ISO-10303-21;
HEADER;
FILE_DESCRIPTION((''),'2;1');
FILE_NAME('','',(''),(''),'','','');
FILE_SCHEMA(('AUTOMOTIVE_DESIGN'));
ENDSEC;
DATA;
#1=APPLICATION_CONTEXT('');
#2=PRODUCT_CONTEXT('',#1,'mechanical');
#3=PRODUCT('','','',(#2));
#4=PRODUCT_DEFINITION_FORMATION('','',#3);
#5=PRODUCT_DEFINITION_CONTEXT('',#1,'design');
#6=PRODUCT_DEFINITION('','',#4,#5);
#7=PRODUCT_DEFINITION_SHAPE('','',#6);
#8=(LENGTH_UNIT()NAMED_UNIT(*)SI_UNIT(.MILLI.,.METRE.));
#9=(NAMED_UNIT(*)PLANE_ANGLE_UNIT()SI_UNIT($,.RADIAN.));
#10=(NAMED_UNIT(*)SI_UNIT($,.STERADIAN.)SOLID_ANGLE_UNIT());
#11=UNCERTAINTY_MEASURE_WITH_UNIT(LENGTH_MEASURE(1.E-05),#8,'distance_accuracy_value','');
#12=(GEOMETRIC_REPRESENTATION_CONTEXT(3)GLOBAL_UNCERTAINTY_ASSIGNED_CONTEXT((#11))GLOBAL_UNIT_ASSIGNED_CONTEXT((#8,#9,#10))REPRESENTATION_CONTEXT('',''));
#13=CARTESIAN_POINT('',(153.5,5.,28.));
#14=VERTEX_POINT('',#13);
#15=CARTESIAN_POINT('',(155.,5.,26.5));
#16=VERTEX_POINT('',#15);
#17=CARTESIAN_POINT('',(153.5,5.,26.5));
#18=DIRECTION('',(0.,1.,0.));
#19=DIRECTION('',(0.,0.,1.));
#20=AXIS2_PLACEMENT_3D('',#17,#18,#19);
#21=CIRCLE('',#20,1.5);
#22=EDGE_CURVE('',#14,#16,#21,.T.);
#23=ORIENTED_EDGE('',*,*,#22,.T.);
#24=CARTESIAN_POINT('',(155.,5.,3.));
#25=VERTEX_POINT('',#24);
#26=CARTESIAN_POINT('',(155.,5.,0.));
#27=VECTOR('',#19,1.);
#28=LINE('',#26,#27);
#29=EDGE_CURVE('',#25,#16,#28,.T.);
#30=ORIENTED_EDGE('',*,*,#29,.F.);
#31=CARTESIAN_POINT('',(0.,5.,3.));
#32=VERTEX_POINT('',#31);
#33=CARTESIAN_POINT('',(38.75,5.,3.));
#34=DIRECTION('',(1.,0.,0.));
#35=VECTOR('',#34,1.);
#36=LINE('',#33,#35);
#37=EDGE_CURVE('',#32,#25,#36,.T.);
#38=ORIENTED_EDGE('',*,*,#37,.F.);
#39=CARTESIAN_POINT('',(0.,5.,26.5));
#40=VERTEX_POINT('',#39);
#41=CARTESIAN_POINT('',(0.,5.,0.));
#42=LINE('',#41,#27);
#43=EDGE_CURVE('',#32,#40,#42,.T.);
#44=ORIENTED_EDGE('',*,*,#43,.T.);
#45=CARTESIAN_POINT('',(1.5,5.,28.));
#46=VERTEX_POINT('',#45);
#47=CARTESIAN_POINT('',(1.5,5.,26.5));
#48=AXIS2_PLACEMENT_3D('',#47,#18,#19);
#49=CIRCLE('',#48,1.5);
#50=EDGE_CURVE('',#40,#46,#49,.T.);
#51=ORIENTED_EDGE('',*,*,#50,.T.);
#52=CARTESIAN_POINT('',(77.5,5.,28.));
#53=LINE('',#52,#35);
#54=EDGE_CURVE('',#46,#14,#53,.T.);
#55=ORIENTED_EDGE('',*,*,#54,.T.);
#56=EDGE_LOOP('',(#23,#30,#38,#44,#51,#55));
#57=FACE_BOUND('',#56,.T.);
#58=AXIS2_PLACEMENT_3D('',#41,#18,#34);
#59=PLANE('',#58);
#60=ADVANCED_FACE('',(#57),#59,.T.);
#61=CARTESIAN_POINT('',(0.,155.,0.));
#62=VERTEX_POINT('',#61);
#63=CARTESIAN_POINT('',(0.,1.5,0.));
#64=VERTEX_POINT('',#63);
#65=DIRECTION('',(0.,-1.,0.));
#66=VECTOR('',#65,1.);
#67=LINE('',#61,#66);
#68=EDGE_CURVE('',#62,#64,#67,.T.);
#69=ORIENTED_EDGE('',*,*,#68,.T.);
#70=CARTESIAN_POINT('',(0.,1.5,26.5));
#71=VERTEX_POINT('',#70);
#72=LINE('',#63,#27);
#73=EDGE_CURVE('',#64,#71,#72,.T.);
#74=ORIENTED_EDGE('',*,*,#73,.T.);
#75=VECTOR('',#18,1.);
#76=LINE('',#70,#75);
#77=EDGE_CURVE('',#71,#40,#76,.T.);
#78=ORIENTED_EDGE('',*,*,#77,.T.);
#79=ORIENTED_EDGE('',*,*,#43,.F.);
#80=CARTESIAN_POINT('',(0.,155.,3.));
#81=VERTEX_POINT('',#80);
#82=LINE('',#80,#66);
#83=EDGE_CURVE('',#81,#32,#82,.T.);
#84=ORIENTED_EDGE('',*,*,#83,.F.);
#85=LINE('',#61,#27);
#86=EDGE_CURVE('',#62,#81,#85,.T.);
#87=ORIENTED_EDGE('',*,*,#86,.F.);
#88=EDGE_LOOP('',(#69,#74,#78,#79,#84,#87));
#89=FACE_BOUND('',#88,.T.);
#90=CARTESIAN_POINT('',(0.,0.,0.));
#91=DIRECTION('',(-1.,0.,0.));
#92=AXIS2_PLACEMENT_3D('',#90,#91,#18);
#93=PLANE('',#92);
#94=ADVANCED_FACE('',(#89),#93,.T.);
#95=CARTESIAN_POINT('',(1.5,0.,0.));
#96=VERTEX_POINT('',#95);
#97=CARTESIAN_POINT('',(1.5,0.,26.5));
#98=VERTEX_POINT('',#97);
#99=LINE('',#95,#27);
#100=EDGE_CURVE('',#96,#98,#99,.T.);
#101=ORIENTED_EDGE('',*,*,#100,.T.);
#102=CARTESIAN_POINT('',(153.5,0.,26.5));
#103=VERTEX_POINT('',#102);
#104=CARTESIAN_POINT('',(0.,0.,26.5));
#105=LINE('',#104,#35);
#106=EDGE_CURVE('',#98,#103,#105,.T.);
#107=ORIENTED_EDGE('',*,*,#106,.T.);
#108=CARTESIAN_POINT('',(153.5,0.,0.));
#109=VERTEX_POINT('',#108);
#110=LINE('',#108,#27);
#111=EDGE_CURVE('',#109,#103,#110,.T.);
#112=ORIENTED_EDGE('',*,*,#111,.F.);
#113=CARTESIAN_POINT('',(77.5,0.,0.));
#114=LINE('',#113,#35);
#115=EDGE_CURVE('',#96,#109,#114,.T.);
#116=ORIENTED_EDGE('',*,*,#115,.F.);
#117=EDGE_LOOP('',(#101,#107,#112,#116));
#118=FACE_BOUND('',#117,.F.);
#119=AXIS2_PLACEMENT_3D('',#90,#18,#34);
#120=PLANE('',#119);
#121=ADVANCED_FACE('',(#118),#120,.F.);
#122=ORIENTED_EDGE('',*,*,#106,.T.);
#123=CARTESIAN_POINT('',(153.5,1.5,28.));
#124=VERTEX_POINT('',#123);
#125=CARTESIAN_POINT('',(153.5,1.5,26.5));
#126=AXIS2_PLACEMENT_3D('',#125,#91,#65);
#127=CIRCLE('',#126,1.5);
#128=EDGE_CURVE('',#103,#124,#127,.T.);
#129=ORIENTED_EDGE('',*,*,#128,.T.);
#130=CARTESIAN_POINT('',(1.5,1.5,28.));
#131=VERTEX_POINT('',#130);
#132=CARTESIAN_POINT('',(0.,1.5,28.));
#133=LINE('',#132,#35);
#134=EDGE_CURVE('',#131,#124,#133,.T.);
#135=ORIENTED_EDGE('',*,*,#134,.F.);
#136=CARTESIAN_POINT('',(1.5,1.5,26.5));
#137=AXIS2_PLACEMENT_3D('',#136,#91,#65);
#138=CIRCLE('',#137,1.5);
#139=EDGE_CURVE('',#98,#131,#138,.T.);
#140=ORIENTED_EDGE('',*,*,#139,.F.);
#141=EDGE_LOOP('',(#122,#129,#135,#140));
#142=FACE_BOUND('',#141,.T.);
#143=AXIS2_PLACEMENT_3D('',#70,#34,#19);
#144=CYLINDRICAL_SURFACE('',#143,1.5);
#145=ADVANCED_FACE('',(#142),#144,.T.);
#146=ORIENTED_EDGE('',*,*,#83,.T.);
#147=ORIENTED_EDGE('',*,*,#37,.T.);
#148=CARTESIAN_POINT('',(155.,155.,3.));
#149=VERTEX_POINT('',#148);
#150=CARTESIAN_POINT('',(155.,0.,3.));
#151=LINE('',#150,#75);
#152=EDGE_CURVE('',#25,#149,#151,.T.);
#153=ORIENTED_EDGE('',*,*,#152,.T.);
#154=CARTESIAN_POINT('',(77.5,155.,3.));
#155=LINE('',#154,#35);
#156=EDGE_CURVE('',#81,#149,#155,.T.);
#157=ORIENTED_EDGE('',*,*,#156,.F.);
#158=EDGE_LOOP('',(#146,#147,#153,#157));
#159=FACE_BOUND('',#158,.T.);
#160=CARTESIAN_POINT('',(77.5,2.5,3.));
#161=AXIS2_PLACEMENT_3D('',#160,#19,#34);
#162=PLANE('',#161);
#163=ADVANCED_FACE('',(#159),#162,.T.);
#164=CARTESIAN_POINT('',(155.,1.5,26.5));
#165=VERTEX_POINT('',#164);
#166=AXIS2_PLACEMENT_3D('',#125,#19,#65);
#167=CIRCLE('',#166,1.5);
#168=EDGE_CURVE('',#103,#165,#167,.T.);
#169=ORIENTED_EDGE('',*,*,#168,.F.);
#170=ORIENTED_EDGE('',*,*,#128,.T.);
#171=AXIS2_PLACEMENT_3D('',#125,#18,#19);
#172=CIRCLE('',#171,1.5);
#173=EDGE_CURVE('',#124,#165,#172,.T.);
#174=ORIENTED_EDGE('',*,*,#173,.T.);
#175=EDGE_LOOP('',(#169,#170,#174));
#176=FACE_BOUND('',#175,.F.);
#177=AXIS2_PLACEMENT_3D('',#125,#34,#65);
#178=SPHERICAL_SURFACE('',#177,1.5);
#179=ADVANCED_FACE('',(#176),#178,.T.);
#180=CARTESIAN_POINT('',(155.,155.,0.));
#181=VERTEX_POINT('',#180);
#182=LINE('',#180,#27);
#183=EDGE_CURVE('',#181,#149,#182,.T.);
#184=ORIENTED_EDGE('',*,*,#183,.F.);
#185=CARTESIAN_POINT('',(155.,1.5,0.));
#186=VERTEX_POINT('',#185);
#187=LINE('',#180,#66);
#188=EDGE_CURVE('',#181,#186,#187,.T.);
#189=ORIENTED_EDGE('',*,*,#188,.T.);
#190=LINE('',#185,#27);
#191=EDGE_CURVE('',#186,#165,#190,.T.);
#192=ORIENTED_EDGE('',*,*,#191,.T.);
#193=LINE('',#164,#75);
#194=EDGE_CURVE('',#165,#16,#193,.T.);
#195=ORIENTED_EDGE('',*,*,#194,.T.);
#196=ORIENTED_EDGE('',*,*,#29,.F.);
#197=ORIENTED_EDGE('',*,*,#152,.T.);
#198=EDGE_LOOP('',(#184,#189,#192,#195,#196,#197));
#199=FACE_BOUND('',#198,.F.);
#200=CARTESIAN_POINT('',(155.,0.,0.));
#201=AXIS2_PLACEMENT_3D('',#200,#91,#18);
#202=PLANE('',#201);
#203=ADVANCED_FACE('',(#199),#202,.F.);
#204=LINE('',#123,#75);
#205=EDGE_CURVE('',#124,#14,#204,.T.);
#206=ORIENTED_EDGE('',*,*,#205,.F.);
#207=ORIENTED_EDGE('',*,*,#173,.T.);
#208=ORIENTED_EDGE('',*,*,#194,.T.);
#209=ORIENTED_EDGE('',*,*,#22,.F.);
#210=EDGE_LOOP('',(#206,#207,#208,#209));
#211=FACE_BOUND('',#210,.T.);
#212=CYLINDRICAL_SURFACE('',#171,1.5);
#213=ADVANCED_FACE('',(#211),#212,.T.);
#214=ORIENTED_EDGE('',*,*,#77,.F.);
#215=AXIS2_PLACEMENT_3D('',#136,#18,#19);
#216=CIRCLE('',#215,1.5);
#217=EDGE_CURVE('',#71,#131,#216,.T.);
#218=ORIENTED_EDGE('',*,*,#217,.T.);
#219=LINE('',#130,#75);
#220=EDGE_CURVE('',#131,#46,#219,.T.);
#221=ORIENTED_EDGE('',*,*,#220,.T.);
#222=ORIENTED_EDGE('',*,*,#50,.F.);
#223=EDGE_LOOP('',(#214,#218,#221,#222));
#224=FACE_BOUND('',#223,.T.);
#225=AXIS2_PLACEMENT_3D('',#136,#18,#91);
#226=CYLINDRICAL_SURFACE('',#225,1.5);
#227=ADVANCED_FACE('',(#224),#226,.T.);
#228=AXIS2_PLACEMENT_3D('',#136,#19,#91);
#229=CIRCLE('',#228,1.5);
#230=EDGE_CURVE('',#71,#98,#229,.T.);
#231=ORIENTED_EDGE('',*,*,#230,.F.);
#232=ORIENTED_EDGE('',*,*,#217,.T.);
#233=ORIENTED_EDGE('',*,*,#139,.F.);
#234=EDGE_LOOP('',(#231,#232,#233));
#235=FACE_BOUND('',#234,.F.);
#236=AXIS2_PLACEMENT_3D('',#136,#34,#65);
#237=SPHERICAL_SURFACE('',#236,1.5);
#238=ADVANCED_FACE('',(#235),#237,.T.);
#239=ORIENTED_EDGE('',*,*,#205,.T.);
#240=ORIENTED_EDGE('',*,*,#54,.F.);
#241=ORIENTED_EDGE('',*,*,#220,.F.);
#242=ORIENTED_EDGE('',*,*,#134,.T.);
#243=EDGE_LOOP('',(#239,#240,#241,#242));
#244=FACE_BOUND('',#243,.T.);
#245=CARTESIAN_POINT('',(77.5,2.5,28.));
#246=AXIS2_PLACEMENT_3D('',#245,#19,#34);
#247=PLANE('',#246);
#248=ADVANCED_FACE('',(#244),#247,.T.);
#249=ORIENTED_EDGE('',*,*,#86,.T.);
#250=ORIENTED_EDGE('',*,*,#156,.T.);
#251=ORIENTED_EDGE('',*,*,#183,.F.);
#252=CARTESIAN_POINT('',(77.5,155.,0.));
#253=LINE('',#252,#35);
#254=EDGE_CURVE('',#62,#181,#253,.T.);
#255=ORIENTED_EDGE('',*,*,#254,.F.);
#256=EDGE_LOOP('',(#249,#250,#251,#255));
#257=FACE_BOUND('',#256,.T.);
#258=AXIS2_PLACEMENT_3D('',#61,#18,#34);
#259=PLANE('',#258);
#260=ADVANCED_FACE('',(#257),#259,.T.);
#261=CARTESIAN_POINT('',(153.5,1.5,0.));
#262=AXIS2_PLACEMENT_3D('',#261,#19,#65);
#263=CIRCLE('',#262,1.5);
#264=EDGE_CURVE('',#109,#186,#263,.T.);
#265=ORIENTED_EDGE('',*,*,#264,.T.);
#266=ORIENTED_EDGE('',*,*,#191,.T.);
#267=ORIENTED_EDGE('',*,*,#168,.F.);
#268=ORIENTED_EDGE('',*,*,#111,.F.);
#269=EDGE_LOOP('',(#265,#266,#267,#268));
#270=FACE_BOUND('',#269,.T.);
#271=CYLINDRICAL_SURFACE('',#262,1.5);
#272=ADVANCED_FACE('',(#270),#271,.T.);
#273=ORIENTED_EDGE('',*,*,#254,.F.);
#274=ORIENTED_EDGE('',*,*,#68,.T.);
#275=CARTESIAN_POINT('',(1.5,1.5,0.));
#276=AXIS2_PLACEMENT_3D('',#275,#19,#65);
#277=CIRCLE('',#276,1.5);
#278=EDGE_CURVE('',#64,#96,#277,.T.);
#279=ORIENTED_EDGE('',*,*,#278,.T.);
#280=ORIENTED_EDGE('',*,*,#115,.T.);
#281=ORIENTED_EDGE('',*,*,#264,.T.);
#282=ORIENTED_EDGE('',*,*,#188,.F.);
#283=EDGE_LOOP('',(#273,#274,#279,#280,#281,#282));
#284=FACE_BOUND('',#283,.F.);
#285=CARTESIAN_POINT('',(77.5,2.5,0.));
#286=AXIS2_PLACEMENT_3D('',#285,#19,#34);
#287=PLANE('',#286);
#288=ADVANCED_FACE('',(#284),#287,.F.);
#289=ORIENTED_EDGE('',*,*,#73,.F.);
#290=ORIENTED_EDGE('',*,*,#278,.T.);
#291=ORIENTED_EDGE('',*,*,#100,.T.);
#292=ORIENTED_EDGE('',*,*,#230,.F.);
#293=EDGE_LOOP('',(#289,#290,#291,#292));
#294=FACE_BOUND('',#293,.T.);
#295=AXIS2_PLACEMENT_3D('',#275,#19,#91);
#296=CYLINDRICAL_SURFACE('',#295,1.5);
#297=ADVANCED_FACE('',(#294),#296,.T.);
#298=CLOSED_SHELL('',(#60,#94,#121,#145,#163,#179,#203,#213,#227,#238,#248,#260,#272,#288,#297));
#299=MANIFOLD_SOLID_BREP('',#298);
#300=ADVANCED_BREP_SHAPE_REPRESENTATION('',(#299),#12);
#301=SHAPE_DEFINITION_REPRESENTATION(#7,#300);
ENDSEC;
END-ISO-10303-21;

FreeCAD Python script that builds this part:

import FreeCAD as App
import Part
import Sketcher
Q = App.Units.Quantity


def edges_at(feature, points):
    """Names of the edges that pass closest to the given points."""
    edges = feature.Shape.Edges
    near = lambda p: min(range(len(edges)), key=lambda i: edges[i].distToShape(Part.Vertex(*p))[0])
    return sorted({f"Edge{near(p) + 1}" for p in points})


def add_polygon(sketch, points):
    """Adds a closed chain of lines whose ends are joined by coincident constraints."""
    first, n = sketch.GeometryCount, len(points)
    for a, b in zip(points, points[1:] + points[:1]):
        sketch.addGeometry(Part.LineSegment(App.Vector(*a, 0), App.Vector(*b, 0)), False)
    for i in range(n):
        sketch.addConstraint(Sketcher.Constraint("Coincident", first + i, 2, first + (i + 1) % n, 1))

doc = App.newDocument("Part")
body = doc.addObject("PartDesign::Body", "Body")

# Sketch on XY plane
sketch1 = body.newObject("Sketcher::SketchObject", "Sketch")
sketch1.AttachmentSupport = (doc.getObject("XY_Plane"), [""])
sketch1.MapMode = "FlatFace"
add_polygon(sketch1, [(0, 5), (0, 0), (155, 0), (155, 5)])  # lines 0-3
sketch1.addConstraint(Sketcher.Constraint("Vertical", 0))
sketch1.addConstraint(Sketcher.Constraint("Horizontal", 1))
sketch1.addConstraint(Sketcher.Constraint("Vertical", 2))
sketch1.addConstraint(Sketcher.Constraint("Horizontal", 3))
sketch1.addConstraint(Sketcher.Constraint("Coincident", 0, 2, -1, 1))
sketch1.addConstraint(Sketcher.Constraint("DistanceX", 1, 1, 1, 2, Q("155 mm")))
sketch1.addConstraint(Sketcher.Constraint("DistanceY", 0, 2, 0, 1, Q("5 mm")))
pad1 = body.newObject("PartDesign::Pad", "Pad")
pad1.Profile = sketch1
pad1.Length = 28

# Sketch on XY plane
sketch2 = body.newObject("Sketcher::SketchObject", "Sketch001")
sketch2.AttachmentSupport = (doc.getObject("XY_Plane"), [""])
sketch2.MapMode = "FlatFace"
add_polygon(sketch2, [(0, 0), (155, 0), (155, 155), (0, 155)])  # lines 0-3
sketch2.addConstraint(Sketcher.Constraint("Horizontal", 0))
sketch2.addConstraint(Sketcher.Constraint("Vertical", 1))
sketch2.addConstraint(Sketcher.Constraint("Horizontal", 2))
sketch2.addConstraint(Sketcher.Constraint("Vertical", 3))
sketch2.addConstraint(Sketcher.Constraint("Coincident", 3, 2, -1, 1))
sketch2.addConstraint(Sketcher.Constraint("Equal", 2, 1))
sketch2.addConstraint(Sketcher.Constraint("DistanceX", 0, 1, 0, 2, Q("155 mm")))
pad2 = body.newObject("PartDesign::Pad", "Pad001")
pad2.Profile = sketch2
pad2.Length = 3
doc.recompute()

fillet = body.newObject("PartDesign::Fillet", "Fillet")
fillet.Base = (pad2, edges_at(pad2, [(77.5, 0, 28)]))
fillet.Radius = 1.5
doc.recompute()

fillet2 = body.newObject("PartDesign::Fillet", "Fillet001")
fillet2.Base = (fillet, edges_at(fillet, [(0, 0, 13.25), (155, 0, 13.25)]))
fillet2.Radius = 1.5

doc.recompute()
